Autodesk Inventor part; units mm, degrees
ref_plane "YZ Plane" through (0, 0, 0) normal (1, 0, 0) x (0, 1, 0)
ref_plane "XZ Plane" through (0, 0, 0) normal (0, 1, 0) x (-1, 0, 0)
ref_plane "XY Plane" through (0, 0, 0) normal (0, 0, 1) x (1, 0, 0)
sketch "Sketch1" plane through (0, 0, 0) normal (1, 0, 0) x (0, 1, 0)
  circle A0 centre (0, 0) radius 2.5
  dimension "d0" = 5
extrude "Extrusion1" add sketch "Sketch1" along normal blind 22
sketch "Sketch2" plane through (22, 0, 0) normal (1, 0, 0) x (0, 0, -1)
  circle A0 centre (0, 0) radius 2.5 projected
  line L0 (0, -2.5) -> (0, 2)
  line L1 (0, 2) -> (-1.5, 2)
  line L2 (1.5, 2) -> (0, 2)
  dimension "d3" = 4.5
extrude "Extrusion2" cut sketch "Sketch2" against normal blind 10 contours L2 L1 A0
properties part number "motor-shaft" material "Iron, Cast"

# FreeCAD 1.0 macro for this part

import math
import FreeCAD as App
import Part
import Sketcher

V = App.Vector
Q = App.Units.Quantity

doc = App.newDocument("Part")
body = doc.addObject("PartDesign::Body", "Body")

# Sketch on YZ plane
sketch1 = body.newObject("Sketcher::SketchObject", "Sketch")
sketch1.AttachmentSupport = (doc.getObject("YZ_Plane"), [""])
sketch1.MapMode = "FlatFace"
sketch1.addGeometry(Part.Circle(V(0, 0, 0), V(0, 0, 1), 2.5), False)
sketch1.addConstraint([
    Sketcher.Constraint("Coincident", 0, 3, -1, 1),
    Sketcher.Constraint("Diameter", 0, Q("5 mm")),
])
pad1 = body.newObject("PartDesign::Pad", "Pad")
pad1.Profile = sketch1
pad1.Length = 22

# Sketch on YZ plane
sketch2 = body.newObject("Sketcher::SketchObject", "Sketch001")
sketch2.AttachmentSupport = (doc.getObject("YZ_Plane"), [""])
sketch2.MapMode = "FlatFace"
sketch2.AttachmentOffset = App.Placement(V(0, 0, 22), App.Rotation())
sketch2.addGeometry([
    Part.LineSegment(V(2, 1.5, 0), V(2, -1.5, 0)),
    Part.ArcOfCircle(Part.Circle(V(0, 0, 0), V(0, 0, 1), 2.5), math.radians(-37), math.radians(37)),
], False)
sketch2.addConstraint([
    Sketcher.Constraint("Coincident", 0, 1, 1, 2),
    Sketcher.Constraint("Coincident", 1, 1, 0, 2),
    Sketcher.Constraint("Vertical", 0),
    Sketcher.Constraint("Coincident", 1, 3, -1, 1),
    Sketcher.Constraint("Radius", 1, Q("2.5 mm")),
    Sketcher.Constraint("DistanceY", 0, 2, 0, 1, Q("3 mm")),
])
pocket1 = body.newObject("PartDesign::Pocket", "Pocket")
pocket1.Profile = sketch2
pocket1.Length = 10

doc.recompute()
